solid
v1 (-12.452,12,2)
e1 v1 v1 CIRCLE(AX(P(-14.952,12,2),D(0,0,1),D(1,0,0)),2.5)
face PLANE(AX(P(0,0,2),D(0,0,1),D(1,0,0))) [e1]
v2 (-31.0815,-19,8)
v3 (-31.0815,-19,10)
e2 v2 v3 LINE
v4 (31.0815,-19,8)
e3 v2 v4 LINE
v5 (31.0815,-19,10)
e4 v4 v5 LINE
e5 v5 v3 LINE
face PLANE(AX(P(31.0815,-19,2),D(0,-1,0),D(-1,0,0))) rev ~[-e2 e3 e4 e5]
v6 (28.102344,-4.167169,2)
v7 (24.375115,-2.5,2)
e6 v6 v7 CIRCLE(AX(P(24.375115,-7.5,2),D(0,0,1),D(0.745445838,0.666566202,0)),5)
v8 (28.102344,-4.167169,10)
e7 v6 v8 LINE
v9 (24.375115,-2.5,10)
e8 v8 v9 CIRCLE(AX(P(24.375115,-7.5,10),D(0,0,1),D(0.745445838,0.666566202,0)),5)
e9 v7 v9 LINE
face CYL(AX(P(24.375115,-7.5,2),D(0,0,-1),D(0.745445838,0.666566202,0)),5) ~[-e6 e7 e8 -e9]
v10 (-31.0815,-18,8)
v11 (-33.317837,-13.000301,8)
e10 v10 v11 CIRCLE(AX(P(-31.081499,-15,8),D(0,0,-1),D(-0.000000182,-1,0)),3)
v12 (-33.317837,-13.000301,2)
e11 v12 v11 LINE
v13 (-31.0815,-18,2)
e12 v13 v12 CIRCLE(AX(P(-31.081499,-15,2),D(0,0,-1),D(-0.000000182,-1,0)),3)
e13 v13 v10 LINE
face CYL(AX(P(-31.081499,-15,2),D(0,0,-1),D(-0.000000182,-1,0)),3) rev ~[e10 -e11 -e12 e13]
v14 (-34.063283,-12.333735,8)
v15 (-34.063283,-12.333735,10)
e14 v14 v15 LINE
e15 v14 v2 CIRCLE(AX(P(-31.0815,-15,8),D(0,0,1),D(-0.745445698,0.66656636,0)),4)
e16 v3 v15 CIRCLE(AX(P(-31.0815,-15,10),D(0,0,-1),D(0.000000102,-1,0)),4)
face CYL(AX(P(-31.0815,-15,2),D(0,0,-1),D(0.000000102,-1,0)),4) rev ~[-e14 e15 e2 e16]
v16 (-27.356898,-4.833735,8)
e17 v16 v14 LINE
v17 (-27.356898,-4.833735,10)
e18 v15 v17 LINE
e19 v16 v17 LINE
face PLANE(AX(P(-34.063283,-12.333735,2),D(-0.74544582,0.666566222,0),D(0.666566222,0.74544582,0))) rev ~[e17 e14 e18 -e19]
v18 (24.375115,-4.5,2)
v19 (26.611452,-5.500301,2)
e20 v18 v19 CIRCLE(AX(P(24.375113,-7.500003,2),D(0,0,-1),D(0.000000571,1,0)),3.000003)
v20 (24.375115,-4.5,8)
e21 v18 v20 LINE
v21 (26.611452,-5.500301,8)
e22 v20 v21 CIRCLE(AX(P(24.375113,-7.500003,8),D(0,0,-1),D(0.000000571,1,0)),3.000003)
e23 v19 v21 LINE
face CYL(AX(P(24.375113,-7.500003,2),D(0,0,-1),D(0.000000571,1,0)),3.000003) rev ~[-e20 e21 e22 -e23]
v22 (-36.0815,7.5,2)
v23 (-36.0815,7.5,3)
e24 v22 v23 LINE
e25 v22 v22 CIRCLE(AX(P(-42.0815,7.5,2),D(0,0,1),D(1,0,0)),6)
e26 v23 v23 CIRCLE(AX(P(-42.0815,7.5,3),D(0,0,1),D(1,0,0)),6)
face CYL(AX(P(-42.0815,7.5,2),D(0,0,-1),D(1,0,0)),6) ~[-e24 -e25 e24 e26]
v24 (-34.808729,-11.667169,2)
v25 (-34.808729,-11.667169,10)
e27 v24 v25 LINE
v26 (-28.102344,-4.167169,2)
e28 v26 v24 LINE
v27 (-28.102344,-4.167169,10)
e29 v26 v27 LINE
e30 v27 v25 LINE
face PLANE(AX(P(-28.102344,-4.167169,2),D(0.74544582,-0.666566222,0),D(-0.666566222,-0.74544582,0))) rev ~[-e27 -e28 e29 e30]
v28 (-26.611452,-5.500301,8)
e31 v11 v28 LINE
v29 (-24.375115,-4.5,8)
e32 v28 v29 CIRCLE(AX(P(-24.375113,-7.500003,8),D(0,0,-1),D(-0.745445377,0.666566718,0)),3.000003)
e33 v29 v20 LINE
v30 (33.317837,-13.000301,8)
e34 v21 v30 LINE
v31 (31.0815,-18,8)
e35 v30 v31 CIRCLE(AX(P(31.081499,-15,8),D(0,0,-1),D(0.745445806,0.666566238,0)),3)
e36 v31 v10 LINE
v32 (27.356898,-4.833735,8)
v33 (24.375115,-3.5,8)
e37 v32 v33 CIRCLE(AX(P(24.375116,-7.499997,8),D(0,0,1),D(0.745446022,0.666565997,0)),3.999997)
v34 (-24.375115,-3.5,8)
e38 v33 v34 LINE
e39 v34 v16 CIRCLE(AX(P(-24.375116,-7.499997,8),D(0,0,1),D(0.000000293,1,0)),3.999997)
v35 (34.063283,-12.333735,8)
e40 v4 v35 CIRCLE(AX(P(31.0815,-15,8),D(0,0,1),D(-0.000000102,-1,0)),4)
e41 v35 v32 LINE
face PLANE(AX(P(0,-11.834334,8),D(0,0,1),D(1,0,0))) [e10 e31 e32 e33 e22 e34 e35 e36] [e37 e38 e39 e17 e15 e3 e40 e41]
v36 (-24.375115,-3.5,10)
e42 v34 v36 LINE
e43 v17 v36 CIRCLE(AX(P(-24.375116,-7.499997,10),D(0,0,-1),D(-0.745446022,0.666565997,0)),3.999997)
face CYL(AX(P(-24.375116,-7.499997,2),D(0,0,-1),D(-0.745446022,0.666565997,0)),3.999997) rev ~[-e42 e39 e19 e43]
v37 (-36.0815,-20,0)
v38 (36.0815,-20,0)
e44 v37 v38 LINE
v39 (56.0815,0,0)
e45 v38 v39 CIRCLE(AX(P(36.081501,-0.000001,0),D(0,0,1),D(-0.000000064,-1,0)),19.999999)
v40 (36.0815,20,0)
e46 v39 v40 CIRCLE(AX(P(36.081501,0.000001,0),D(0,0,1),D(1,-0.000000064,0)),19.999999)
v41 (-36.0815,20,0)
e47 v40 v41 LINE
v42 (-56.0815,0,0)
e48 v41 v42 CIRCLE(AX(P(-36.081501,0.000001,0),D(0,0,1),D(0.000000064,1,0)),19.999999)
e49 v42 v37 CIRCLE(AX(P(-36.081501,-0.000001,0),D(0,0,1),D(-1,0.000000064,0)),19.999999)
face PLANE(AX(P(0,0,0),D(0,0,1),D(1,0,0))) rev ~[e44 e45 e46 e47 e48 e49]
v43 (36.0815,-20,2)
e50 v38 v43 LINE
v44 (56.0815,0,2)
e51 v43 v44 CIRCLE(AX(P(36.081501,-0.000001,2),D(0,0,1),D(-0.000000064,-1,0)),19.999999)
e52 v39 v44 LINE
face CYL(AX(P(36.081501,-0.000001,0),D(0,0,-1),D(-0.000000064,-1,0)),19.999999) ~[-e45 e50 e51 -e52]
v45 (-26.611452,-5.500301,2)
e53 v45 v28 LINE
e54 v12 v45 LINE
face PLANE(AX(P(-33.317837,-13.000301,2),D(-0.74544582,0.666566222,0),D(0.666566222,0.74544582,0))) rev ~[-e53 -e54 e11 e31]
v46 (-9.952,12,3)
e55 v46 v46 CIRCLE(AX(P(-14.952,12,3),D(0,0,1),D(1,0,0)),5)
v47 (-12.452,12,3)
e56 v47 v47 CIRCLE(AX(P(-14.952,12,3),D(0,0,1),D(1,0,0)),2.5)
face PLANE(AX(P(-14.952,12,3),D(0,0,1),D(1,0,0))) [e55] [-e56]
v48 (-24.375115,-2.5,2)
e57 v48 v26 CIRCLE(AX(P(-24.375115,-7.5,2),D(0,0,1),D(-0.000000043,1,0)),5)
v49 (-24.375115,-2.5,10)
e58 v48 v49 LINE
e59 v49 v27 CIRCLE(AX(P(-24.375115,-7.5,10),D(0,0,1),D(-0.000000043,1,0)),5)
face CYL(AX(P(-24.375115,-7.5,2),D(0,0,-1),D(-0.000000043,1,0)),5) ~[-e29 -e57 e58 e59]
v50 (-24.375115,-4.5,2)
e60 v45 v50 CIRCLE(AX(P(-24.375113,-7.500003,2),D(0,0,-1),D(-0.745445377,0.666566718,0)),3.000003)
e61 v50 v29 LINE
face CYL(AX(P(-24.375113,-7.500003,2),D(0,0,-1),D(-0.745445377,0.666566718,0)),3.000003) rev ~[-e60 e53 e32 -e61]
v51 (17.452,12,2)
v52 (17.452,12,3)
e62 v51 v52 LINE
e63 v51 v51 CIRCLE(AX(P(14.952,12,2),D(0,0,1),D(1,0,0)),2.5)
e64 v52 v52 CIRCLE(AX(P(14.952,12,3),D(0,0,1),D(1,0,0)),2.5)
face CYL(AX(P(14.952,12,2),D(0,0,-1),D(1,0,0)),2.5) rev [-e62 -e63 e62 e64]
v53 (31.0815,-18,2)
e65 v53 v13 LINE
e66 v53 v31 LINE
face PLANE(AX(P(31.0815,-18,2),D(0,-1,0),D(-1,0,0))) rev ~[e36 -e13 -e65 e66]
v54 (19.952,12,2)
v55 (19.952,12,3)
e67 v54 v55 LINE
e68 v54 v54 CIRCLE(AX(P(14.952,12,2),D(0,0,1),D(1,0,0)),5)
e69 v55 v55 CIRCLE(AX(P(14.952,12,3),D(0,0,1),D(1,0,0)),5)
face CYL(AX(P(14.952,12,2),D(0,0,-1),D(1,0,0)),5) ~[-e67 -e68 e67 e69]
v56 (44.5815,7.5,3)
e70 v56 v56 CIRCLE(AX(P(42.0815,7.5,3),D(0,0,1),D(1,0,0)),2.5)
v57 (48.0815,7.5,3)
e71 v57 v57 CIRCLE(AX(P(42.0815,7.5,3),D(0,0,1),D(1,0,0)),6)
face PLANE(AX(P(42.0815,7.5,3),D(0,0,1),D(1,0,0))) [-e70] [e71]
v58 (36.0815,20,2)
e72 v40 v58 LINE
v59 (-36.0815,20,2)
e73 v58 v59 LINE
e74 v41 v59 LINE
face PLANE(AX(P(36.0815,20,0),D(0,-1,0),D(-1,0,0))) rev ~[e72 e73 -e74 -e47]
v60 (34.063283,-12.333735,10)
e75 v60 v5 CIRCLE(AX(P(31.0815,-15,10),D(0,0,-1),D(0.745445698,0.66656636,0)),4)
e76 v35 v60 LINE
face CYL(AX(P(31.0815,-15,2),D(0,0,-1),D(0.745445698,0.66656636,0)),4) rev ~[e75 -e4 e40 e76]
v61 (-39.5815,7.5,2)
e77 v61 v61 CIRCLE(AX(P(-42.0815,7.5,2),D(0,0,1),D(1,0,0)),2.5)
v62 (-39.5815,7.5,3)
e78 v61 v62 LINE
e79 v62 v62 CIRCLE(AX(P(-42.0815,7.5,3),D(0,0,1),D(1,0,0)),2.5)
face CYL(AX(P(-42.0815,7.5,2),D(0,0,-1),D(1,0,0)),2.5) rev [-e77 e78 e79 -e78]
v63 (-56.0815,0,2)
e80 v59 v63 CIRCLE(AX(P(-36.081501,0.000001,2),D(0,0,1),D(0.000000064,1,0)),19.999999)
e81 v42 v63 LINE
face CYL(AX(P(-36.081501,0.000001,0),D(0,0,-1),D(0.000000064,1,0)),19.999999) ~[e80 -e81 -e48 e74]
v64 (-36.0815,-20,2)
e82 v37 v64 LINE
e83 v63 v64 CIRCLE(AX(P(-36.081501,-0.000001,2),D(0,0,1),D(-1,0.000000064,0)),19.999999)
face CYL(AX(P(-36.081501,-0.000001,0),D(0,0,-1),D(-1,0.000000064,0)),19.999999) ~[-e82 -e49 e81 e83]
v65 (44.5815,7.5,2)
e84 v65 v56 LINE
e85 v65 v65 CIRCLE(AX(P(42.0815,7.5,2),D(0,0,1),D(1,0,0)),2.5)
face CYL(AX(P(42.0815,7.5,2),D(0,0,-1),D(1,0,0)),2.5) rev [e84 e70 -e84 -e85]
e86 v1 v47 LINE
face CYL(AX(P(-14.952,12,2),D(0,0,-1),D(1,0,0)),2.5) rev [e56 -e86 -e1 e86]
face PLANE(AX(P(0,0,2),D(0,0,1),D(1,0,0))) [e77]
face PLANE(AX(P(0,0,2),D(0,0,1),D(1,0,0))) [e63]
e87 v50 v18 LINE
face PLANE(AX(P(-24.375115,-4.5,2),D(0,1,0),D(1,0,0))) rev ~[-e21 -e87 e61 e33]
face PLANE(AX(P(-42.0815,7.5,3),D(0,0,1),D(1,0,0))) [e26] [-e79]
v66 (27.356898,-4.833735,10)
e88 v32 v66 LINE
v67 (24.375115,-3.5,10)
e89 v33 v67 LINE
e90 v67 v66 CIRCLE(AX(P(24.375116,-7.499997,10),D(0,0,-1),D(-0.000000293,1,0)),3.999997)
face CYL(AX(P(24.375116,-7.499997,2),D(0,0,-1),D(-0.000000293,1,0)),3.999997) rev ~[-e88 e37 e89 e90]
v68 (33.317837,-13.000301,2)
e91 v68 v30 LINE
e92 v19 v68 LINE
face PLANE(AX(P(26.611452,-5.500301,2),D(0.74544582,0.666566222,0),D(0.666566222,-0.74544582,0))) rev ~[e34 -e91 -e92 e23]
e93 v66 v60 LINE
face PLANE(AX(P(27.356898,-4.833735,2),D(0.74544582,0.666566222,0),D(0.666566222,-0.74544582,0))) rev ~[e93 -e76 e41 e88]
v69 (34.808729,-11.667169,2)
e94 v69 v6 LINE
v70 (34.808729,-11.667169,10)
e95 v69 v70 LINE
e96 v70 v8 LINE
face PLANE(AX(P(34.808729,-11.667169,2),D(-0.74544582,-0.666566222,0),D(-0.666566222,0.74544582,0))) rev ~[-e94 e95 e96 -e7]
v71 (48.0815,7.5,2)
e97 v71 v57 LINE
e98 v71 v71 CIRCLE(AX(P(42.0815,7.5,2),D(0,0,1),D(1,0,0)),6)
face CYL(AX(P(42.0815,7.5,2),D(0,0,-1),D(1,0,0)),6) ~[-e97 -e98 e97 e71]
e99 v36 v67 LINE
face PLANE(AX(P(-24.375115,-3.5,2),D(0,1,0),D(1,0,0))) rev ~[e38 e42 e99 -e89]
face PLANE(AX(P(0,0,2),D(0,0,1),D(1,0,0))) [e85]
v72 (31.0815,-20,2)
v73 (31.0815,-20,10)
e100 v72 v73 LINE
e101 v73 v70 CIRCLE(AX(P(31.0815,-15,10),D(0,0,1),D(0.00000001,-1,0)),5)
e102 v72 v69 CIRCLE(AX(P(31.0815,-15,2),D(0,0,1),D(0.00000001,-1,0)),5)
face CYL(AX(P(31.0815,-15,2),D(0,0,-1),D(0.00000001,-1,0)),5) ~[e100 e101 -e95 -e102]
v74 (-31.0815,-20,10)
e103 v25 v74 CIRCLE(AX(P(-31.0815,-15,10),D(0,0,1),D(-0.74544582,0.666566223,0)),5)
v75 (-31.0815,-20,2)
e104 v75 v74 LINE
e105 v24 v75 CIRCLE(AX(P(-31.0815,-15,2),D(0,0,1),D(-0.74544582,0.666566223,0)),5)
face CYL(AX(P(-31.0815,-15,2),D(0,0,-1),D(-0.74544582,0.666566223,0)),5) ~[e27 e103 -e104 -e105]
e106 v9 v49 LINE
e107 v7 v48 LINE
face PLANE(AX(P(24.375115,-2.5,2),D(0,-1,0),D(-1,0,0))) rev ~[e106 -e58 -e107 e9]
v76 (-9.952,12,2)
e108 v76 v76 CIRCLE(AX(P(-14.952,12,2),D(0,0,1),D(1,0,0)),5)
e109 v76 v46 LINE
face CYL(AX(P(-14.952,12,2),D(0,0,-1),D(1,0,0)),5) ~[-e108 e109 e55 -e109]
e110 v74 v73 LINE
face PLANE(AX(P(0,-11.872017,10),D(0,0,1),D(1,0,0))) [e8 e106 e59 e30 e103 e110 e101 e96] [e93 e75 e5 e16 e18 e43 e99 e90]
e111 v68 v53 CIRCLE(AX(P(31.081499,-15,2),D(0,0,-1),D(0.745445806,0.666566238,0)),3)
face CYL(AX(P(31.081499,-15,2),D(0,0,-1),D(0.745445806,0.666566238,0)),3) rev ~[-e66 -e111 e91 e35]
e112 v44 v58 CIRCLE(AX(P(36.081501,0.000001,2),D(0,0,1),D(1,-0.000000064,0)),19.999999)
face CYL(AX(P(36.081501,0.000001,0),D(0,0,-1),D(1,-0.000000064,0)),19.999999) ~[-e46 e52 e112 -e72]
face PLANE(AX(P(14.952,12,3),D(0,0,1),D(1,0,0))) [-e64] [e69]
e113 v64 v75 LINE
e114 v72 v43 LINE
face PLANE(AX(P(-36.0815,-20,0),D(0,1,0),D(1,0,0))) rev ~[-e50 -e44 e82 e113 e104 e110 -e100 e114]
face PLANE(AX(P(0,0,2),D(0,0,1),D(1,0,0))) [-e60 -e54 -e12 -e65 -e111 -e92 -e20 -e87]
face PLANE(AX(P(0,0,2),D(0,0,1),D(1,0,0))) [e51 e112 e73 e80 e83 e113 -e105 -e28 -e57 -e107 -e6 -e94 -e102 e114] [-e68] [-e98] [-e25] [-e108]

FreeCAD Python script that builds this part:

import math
import FreeCAD as App
import Part
import Sketcher

doc = App.newDocument("Part")
body = doc.addObject("PartDesign::Body", "Body")

sketch1 = body.newObject("Sketcher::SketchObject", "Sketch")
sketch1.AttachmentSupport = (doc.getObject("XY_Plane"), [""])
sketch1.MapMode = "FlatFace"
sketch1.addGeometry([
    Part.LineSegment(App.Vector(-36, -20, 0), App.Vector(36, -20, 0)),
    Part.ArcOfCircle(Part.Circle(App.Vector(36, 0, 0), App.Vector(0, 0, 1), 20), math.radians(-90), math.radians(0)),
    Part.ArcOfCircle(Part.Circle(App.Vector(36, 0, 0), App.Vector(0, 0, 1), 20), math.radians(0), math.radians(90)),
    Part.LineSegment(App.Vector(36, 20, 0), App.Vector(-36, 20, 0)),
    Part.ArcOfCircle(Part.Circle(App.Vector(-36, 0, 0), App.Vector(0, 0, 1), 20), math.radians(90), math.radians(180)),
    Part.ArcOfCircle(Part.Circle(App.Vector(-36, 0, 0), App.Vector(0, 0, 1), 20), math.radians(180), math.radians(270)),
], False)
sketch1.addConstraint([
    Sketcher.Constraint("Tangent", 0, 2, 1, 1),
    Sketcher.Constraint("Tangent", 1, 2, 2, 1),
    Sketcher.Constraint("Tangent", 2, 2, 3, 1),
    Sketcher.Constraint("Tangent", 3, 2, 4, 1),
    Sketcher.Constraint("Tangent", 4, 2, 5, 1),
    Sketcher.Constraint("Tangent", 5, 2, 0, 1),
    Sketcher.Constraint("Horizontal", 0),
    Sketcher.Constraint("Horizontal", 3),
    Sketcher.Constraint("Equal", 1, 2),
    Sketcher.Constraint("Equal", 2, 4),
    Sketcher.Constraint("Symmetric", 1, 3, 4, 3, -1, 1),
    Sketcher.Constraint("PointOnObject", 1, 2, -1),
    Sketcher.Constraint("PointOnObject", 4, 2, -1),
    Sketcher.Constraint("Radius", 1, 19.999999),
    Sketcher.Constraint("DistanceX", 0, 1, 0, 2, 72.163),
])
pad1 = body.newObject("PartDesign::Pad", "Pad")
pad1.Profile = sketch1
pad1.Length = 2

sketch2 = body.newObject("Sketcher::SketchObject", "Sketch001")
sketch2.AttachmentSupport = (doc.getObject("XY_Plane"), [""])
sketch2.MapMode = "FlatFace"
sketch2.AttachmentOffset = App.Placement(App.Vector(0, 0, 2), App.Rotation())
sketch2.addGeometry([
    Part.Circle(App.Vector(-42.1, 7.5, 0), App.Vector(0, 0, 1), 6),
    Part.Circle(App.Vector(-42.1, 7.5, 0), App.Vector(0, 0, 1), 2.5),
    Part.Circle(App.Vector(-15, 12, 0), App.Vector(0, 0, 1), 5),
    Part.Circle(App.Vector(-15, 12, 0), App.Vector(0, 0, 1), 2.5),
    Part.Circle(App.Vector(42.1, 7.5, 0), App.Vector(0, 0, 1), 6),
    Part.Circle(App.Vector(42.1, 7.5, 0), App.Vector(0, 0, 1), 2.5),
    Part.Circle(App.Vector(15, 12, 0), App.Vector(0, 0, 1), 5),
    Part.Circle(App.Vector(15, 12, 0), App.Vector(0, 0, 1), 2.5),
], False)
sketch2.addConstraint([
    Sketcher.Constraint("Coincident", 1, 3, 0, 3),
    Sketcher.Constraint("Coincident", 3, 3, 2, 3),
    Sketcher.Constraint("Coincident", 5, 3, 4, 3),
    Sketcher.Constraint("Coincident", 7, 3, 6, 3),
    Sketcher.Constraint("Equal", 1, 3),
    Sketcher.Constraint("Equal", 0, 4),
    Sketcher.Constraint("Equal", 3, 5),
    Sketcher.Constraint("Equal", 2, 6),
    Sketcher.Constraint("Equal", 5, 7),
    Sketcher.Constraint("Symmetric", 0, 3, 4, 3, -2),
    Sketcher.Constraint("Symmetric", 2, 3, 6, 3, -2),
    Sketcher.Constraint("Diameter", 0, 12.0),
    Sketcher.Constraint("Diameter", 1, 5.0),
    Sketcher.Constraint("Diameter", 2, 10.0),
    Sketcher.Constraint("DistanceY", -1, 1, 2, 3, 12.0),
    Sketcher.Constraint("DistanceY", -1, 1, 0, 3, 7.5),
    Sketcher.Constraint("DistanceX", 2, 3, -1, 1, 14.952),
    Sketcher.Constraint("DistanceX", 0, 3, 4, 3, 84.163),
])
pad2 = body.newObject("PartDesign::Pad", "Pad001")
pad2.Profile = sketch2
pad2.Length = 1

sketch3 = body.newObject("Sketcher::SketchObject", "Sketch002")
sketch3.AttachmentSupport = (doc.getObject("XY_Plane"), [""])
sketch3.MapMode = "FlatFace"
sketch3.AttachmentOffset = App.Placement(App.Vector(0, 0, 2), App.Rotation())
sketch3.addGeometry([
    Part.LineSegment(App.Vector(-31.1, -20, 0), App.Vector(31.1, -20, 0)),
    Part.ArcOfCircle(Part.Circle(App.Vector(31.1, -15, 0), App.Vector(0, 0, 1), 5), math.radians(-90), math.radians(42)),
    Part.LineSegment(App.Vector(34.8, -11.7, 0), App.Vector(28.1, -4.2, 0)),
    Part.ArcOfCircle(Part.Circle(App.Vector(24.4, -7.5, 0), App.Vector(0, 0, 1), 5), math.radians(42), math.radians(90)),
    Part.LineSegment(App.Vector(24.4, -2.5, 0), App.Vector(-24.4, -2.5, 0)),
    Part.ArcOfCircle(Part.Circle(App.Vector(-24.4, -7.5, 0), App.Vector(0, 0, 1), 5), math.radians(90), math.radians(138)),
    Part.LineSegment(App.Vector(-28.1, -4.2, 0), App.Vector(-34.8, -11.7, 0)),
    Part.ArcOfCircle(Part.Circle(App.Vector(-31.1, -15, 0), App.Vector(0, 0, 1), 5), math.radians(138), math.radians(270)),
    Part.ArcOfCircle(Part.Circle(App.Vector(31.1, -15, 0), App.Vector(0, 0, 1), 4), math.radians(-90), math.radians(42)),
    Part.LineSegment(App.Vector(31.1, -19, 0), App.Vector(-31.1, -19, 0)),
    Part.ArcOfCircle(Part.Circle(App.Vector(-31.1, -15, 0), App.Vector(0, 0, 1), 4), math.radians(138), math.radians(270)),
    Part.LineSegment(App.Vector(-34.1, -12.3, 0), App.Vector(-27.4, -4.8, 0)),
    Part.ArcOfCircle(Part.Circle(App.Vector(-24.4, -7.5, 0), App.Vector(0, 0, 1), 4), math.radians(90), math.radians(138)),
    Part.LineSegment(App.Vector(-24.4, -3.5, 0), App.Vector(24.4, -3.5, 0)),
    Part.ArcOfCircle(Part.Circle(App.Vector(24.4, -7.5, 0), App.Vector(0, 0, 1), 4), math.radians(42), math.radians(90)),
    Part.LineSegment(App.Vector(27.4, -4.8, 0), App.Vector(34.1, -12.3, 0)),
], False)
sketch3.addConstraint([
    Sketcher.Constraint("Tangent", 0, 2, 1, 1),
    Sketcher.Constraint("Tangent", 1, 2, 2, 1),
    Sketcher.Constraint("Tangent", 2, 2, 3, 1),
    Sketcher.Constraint("Tangent", 3, 2, 4, 1),
    Sketcher.Constraint("Tangent", 4, 2, 5, 1),
    Sketcher.Constraint("Tangent", 5, 2, 6, 1),
    Sketcher.Constraint("Tangent", 6, 2, 7, 1),
    Sketcher.Constraint("Tangent", 7, 2, 0, 1),
    Sketcher.Constraint("Tangent", 8, 1, 9, 1),
    Sketcher.Constraint("Tangent", 9, 2, 10, 2),
    Sketcher.Constraint("Tangent", 10, 1, 11, 1),
    Sketcher.Constraint("Tangent", 11, 2, 12, 2),
    Sketcher.Constraint("Tangent", 12, 1, 13, 1),
    Sketcher.Constraint("Tangent", 13, 2, 14, 2),
    Sketcher.Constraint("Tangent", 14, 1, 15, 1),
    Sketcher.Constraint("Tangent", 15, 2, 8, 2),
    Sketcher.Constraint("Horizontal", 0),
    Sketcher.Constraint("Horizontal", 4),
    Sketcher.Constraint("Horizontal", 9),
    Sketcher.Constraint("Horizontal", 13),
    Sketcher.Constraint("Coincident", 8, 3, 1, 3),
    Sketcher.Constraint("Coincident", 10, 3, 7, 3),
    Sketcher.Constraint("Coincident", 12, 3, 5, 3),
    Sketcher.Constraint("Coincident", 14, 3, 3, 3),
    Sketcher.Constraint("Equal", 1, 3),
    Sketcher.Constraint("Equal", 3, 5),
    Sketcher.Constraint("Equal", 5, 7),
    Sketcher.Constraint("Symmetric", 2, 2, 5, 2, -2),
    Sketcher.Constraint("Parallel", 6, 11),
    Sketcher.Constraint("Radius", 1, 5.0),
    Sketcher.Constraint("Radius", 8, 4.0),
    Sketcher.Constraint("DistanceY", 1, 3, -1, 1, 15.0),
    Sketcher.Constraint("DistanceY", 3, 3, -1, 1, 7.5),
    Sketcher.Constraint("DistanceX", 0, 1, 0, 2, 62.163),
    Sketcher.Constraint("DistanceX", 4, 2, 4, 1, 48.75023),
])
pad3 = body.newObject("PartDesign::Pad", "Pad002")
pad3.Profile = sketch3
pad3.Length = 8

sketch4 = body.newObject("Sketcher::SketchObject", "Sketch003")
sketch4.AttachmentSupport = (doc.getObject("XY_Plane"), [""])
sketch4.MapMode = "FlatFace"
sketch4.AttachmentOffset = App.Placement(App.Vector(0, 0, 2), App.Rotation())
sketch4.addGeometry([
    Part.LineSegment(App.Vector(24.4, -3.5, 0), App.Vector(-24.4, -3.5, 0)),
    Part.ArcOfCircle(Part.Circle(App.Vector(-24.4, -7.5, 0), App.Vector(0, 0, 1), 4), math.radians(90), math.radians(138)),
    Part.LineSegment(App.Vector(-27.4, -4.8, 0), App.Vector(-34.1, -12.3, 0)),
    Part.ArcOfCircle(Part.Circle(App.Vector(-31.1, -15, 0), App.Vector(0, 0, 1), 4), math.radians(138), math.radians(270)),
    Part.LineSegment(App.Vector(-31.1, -19, 0), App.Vector(31.1, -19, 0)),
    Part.ArcOfCircle(Part.Circle(App.Vector(31.1, -15, 0), App.Vector(0, 0, 1), 4), math.radians(-90), math.radians(42)),
    Part.LineSegment(App.Vector(34.1, -12.3, 0), App.Vector(27.4, -4.8, 0)),
    Part.ArcOfCircle(Part.Circle(App.Vector(24.4, -7.5, 0), App.Vector(0, 0, 1), 4), math.radians(42), math.radians(90)),
    Part.LineSegment(App.Vector(-24.4, -4.5, 0), App.Vector(24.4, -4.5, 0)),
    Part.ArcOfCircle(Part.Circle(App.Vector(24.4, -7.5, 0), App.Vector(0, 0, 1), 3), math.radians(42), math.radians(90)),
    Part.LineSegment(App.Vector(26.6, -5.5, 0), App.Vector(33.3, -13, 0)),
    Part.ArcOfCircle(Part.Circle(App.Vector(31.1, -15, 0), App.Vector(0, 0, 1), 3), math.radians(-90), math.radians(42)),
    Part.LineSegment(App.Vector(31.1, -18, 0), App.Vector(-31.1, -18, 0)),
    Part.ArcOfCircle(Part.Circle(App.Vector(-31.1, -15, 0), App.Vector(0, 0, 1), 3), math.radians(138), math.radians(270)),
    Part.LineSegment(App.Vector(-33.3, -13, 0), App.Vector(-26.6, -5.5, 0)),
    Part.ArcOfCircle(Part.Circle(App.Vector(-24.4, -7.5, 0), App.Vector(0, 0, 1), 3), math.radians(90), math.radians(138)),
], False)
sketch4.addConstraint([
    Sketcher.Constraint("Tangent", 0, 2, 1, 1),
    Sketcher.Constraint("Tangent", 1, 2, 2, 1),
    Sketcher.Constraint("Tangent", 2, 2, 3, 1),
    Sketcher.Constraint("Tangent", 3, 2, 4, 1),
    Sketcher.Constraint("Tangent", 4, 2, 5, 1),
    Sketcher.Constraint("Tangent", 5, 2, 6, 1),
    Sketcher.Constraint("Tangent", 6, 2, 7, 1),
    Sketcher.Constraint("Tangent", 7, 2, 0, 1),
    Sketcher.Constraint("Tangent", 8, 2, 9, 2),
    Sketcher.Constraint("Tangent", 9, 1, 10, 1),
    Sketcher.Constraint("Tangent", 10, 2, 11, 2),
    Sketcher.Constraint("Tangent", 11, 1, 12, 1),
    Sketcher.Constraint("Tangent", 12, 2, 13, 2),
    Sketcher.Constraint("Tangent", 13, 1, 14, 1),
    Sketcher.Constraint("Tangent", 14, 2, 15, 2),
    Sketcher.Constraint("Tangent", 15, 1, 8, 1),
    Sketcher.Constraint("Horizontal", 0),
    Sketcher.Constraint("Horizontal", 4),
    Sketcher.Constraint("Horizontal", 8),
    Sketcher.Constraint("Horizontal", 12),
    Sketcher.Constraint("Coincident", 9, 3, 7, 3),
    Sketcher.Constraint("Coincident", 11, 3, 5, 3),
    Sketcher.Constraint("Coincident", 13, 3, 3, 3),
    Sketcher.Constraint("Coincident", 15, 3, 1, 3),
    Sketcher.Constraint("Equal", 3, 5),
    Sketcher.Constraint("Equal", 1, 7),
    Sketcher.Constraint("Symmetric", 2, 2, 5, 2, -2),
    Sketcher.Constraint("Parallel", 6, 10),
    Sketcher.Constraint("Radius", 3, 4.0),
    Sketcher.Constraint("Radius", 11, 3.0),
    Sketcher.Constraint("DistanceY", 3, 3, -1, 1, 15.0),
    Sketcher.Constraint("DistanceY", 0, 2, -1, 1, 3.5),
    Sketcher.Constraint("DistanceY", 2, 2, 1, 2, 7.5),
    Sketcher.Constraint("DistanceX", 4, 1, 4, 2, 62.163),
    Sketcher.Constraint("DistanceX", 0, 2, 0, 1, 48.75023),
])
pad4 = body.newObject("PartDesign::Pad", "Pad003")
pad4.Profile = sketch4
pad4.Length = 6

doc.recompute()
